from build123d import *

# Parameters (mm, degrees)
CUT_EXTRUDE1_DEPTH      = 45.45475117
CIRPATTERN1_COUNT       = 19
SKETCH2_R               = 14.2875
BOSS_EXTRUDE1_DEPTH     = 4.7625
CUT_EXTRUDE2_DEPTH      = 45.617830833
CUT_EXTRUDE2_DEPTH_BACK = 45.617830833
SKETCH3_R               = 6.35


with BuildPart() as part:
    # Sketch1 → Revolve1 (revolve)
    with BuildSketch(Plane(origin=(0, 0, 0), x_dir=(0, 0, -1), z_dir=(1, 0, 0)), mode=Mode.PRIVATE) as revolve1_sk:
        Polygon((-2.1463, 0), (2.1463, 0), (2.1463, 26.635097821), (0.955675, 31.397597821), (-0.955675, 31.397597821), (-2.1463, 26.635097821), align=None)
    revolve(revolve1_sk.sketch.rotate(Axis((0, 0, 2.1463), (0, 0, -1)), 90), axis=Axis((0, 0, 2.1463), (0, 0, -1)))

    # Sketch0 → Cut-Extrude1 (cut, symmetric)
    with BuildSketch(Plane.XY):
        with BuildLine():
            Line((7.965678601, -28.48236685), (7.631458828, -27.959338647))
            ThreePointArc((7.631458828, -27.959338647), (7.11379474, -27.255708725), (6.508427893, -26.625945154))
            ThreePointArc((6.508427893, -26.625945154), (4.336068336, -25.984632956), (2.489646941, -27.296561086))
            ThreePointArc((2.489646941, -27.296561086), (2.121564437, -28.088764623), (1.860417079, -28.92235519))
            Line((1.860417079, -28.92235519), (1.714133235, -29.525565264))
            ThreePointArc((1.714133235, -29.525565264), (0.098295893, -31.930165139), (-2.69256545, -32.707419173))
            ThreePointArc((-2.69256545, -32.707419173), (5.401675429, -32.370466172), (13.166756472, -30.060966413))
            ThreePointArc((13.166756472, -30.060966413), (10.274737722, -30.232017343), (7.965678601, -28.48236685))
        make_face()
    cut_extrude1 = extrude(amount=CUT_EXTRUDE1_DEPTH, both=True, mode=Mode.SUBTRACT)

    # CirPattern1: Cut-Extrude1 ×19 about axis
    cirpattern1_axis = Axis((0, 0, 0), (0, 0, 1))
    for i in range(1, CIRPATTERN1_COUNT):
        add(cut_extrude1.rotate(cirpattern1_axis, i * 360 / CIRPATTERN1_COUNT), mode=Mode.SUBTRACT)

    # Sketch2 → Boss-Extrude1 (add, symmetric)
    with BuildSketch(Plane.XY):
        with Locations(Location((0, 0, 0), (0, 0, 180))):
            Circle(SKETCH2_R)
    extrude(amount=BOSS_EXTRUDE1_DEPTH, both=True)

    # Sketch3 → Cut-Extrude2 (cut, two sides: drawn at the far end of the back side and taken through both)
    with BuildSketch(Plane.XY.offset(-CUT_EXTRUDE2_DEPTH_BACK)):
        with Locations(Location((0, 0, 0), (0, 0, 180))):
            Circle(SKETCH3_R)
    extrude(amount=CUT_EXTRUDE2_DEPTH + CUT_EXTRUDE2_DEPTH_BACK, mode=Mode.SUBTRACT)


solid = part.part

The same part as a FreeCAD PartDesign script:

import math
import FreeCAD as App
import Part
import Sketcher
from FreeCAD import Vector
Q = App.Units.Quantity


def add_polygon(sketch, points):
    """Adds a closed chain of lines whose ends are joined by coincident constraints."""
    first, n = sketch.GeometryCount, len(points)
    for a, b in zip(points, points[1:] + points[:1]):
        sketch.addGeometry(Part.LineSegment(App.Vector(*a, 0), App.Vector(*b, 0)), False)
    for i in range(n):
        sketch.addConstraint(Sketcher.Constraint("Coincident", first + i, 2, first + (i + 1) % n, 1))

doc = App.newDocument("Part")
params = doc.addObject("Spreadsheet::Sheet", "Params")
for row, (alias, value) in enumerate([
    ("sketch1_height", "0.169 in"),
    ("revolution_angle", "360 deg"),
    ("sketch2_radius", "0.262 in"),
    ("sketch2_radius2", "0.102 in"),
    ("pocket1_length", "90.909502 mm"),
    ("sketch3_diameter", "1.125 in"),
    ("pad1_length", "0.375 in"),
    ("sketch4_diameter", "0.5 in"),
], start=1):
    params.set(f"A{row}", alias)
    params.set(f"B{row}", "=" + value)
    params.setAlias(f"B{row}", alias)

body = doc.addObject("PartDesign::Body", "Body")

# Sketch on YZ plane
sketch1 = doc.addObject("Sketcher::SketchObject", "Sketch")
body.addObject(sketch1)
sketch1.AttachmentSupport = (doc.YZ_Plane, [""])
sketch1.MapMode = "FlatFace"
add_polygon(sketch1, [(0, 2.1463), (0, -2.1463), (26.635098, -2.1463), (31.397598, -0.955675), (31.397598, 0.955675), (26.635098, 2.1463)])  # lines 0-5
sketch1.addConstraint(Sketcher.Constraint("Vertical", 0))
sketch1.addConstraint(Sketcher.Constraint("Horizontal", 1))
sketch1.addConstraint(Sketcher.Constraint("Vertical", 3))
sketch1.addConstraint(Sketcher.Constraint("Horizontal", 5))
sketch1.addConstraint(Sketcher.Constraint("Symmetric", 0, 2, 5, 2, -1, 1))
sketch1.addConstraint(Sketcher.Constraint("Vertical", 1, 2, 4, 2))
sketch1.addConstraint(Sketcher.Constraint("Equal", 2, 4))
sketch1.addConstraint(Sketcher.Constraint("DistanceY", 0, 2, 0, 1, Q("0.169 in")))
sketch1.addConstraint(Sketcher.Constraint("DistanceX", 1, 2, 2, 2, Q("0.1875 in")))
sketch1.addConstraint(Sketcher.Constraint("DistanceY", 1, 2, 2, 2, Q("0.046875 in")))
sketch1.addConstraint(Sketcher.Constraint("DistanceX", 1, 1, 1, 2, 26.635098))
sketch1.setExpression("Constraints[13]", "Params.sketch1_height")
revolution = doc.addObject("PartDesign::Revolution", "Revolution")
body.addObject(revolution)
revolution.Profile = sketch1
revolution.ReferenceAxis = (sketch1, ["V_Axis"])
revolution.setExpression("Angle", "Params.revolution_angle")

# Sketch on XY plane
sketch2 = doc.addObject("Sketcher::SketchObject", "Sketch001")
body.addObject(sketch2)
sketch2.AttachmentSupport = (doc.XY_Plane, [""])
sketch2.MapMode = "FlatFace"
sketch2.addGeometry(Part.LineSegment(Vector(7.965679, -28.482367, 0), Vector(7.631459, -27.959339, 0)), False)
sketch2.addGeometry(Part.ArcOfCircle(Part.Circle(Vector(2.02379, -31.54269, 0), Vector(0, 0, 1), 6.6548), math.radians(32.578947), math.radians(47.631579)), False)
sketch2.addGeometry(Part.ArcOfCircle(Part.Circle(Vector(4.7625, -28.540098, 0), Vector(0, 0, 1), 2.5908), math.radians(47.631579), math.radians(151.315789)), False)
sketch2.addGeometry(Part.ArcOfCircle(Part.Circle(Vector(8.32776, -30.490744, 0), Vector(0, 0, 1), 6.6548), math.radians(151.315789), math.radians(166.368421)), False)
sketch2.addGeometry(Part.LineSegment(Vector(1.860417, -28.922355, 0), Vector(1.714133, -29.525565, 0)), False)
sketch2.addGeometry(Part.ArcOfCircle(Part.Circle(Vector(-2.3495, -28.540098, 0), Vector(0, 0, 1), 4.181419), math.radians(-94.706135), math.radians(-13.631579)), False)
sketch2.addGeometry(Part.ArcOfCircle(Part.Circle(Vector(0, 0, 0), Vector(0, 0, 1), 32.818062), math.radians(-94.706135), math.radians(-66.346496)), False)
sketch2.addGeometry(Part.ArcOfCircle(Part.Circle(Vector(11.489152, -26.230835, 0), Vector(0, 0, 1), 4.181419), math.radians(-147.421053), math.radians(-66.346496)), False)
sketch2.addConstraint(Sketcher.Constraint("Tangent", 0, 2, 1, 1))
sketch2.addConstraint(Sketcher.Constraint("Tangent", 1, 2, 2, 1))
sketch2.addConstraint(Sketcher.Constraint("Tangent", 2, 2, 3, 1))
sketch2.addConstraint(Sketcher.Constraint("Tangent", 3, 2, 4, 1))
sketch2.addConstraint(Sketcher.Constraint("Tangent", 4, 2, 5, 2))
sketch2.addConstraint(Sketcher.Constraint("Tangent", 5, 1, 6, 1))
sketch2.addConstraint(Sketcher.Constraint("Tangent", 6, 2, 7, 2))
sketch2.addConstraint(Sketcher.Constraint("Tangent", 7, 1, 0, 1))
sketch2.addConstraint(Sketcher.Constraint("Coincident", 6, 3, -1, 1))
sketch2.addConstraint(Sketcher.Constraint("Equal", 1, 3))
sketch2.addConstraint(Sketcher.Constraint("Equal", 5, 7))
sketch2.addConstraint(Sketcher.Constraint("Horizontal", 2, 3, 5, 3))
sketch2.addConstraint(Sketcher.Constraint("Equal", 0, 4))
sketch2.addConstraint(Sketcher.Constraint("Radius", 1, Q("0.262 in")))
sketch2.addConstraint(Sketcher.Constraint("Radius", 2, Q("0.102 in")))
sketch2.addConstraint(Sketcher.Constraint("DistanceX", 5, 3, 2, 3, Q("0.28 in")))
sketch2.addConstraint(Sketcher.Constraint("DistanceX", -1, 1, 2, 3, Q("0.1875 in")))
sketch2.addConstraint(Sketcher.Constraint("Radius", 5, 4.181419))
sketch2.addConstraint(Sketcher.Constraint("Radius", 6, 32.818062))
sketch2.addConstraint(Sketcher.Constraint("DistanceX", 0, 2, 3, 3, 0.696301))
sketch2.addConstraint(Sketcher.Constraint("DistanceY", 3, 3, 1, 2, 3.864799))
sketch2.setExpression("Constraints[13]", "Params.sketch2_radius")
sketch2.setExpression("Constraints[14]", "Params.sketch2_radius2")
pocket1 = doc.addObject("PartDesign::Pocket", "Pocket")
body.addObject(pocket1)
pocket1.Profile = sketch2
pocket1.setExpression("Length", "Params.pocket1_length")
pocket1.Midplane = True
doc.recompute()

polarpattern = doc.addObject("PartDesign::PolarPattern", "PolarPattern")
body.addObject(polarpattern)
polarpattern.Originals = [pocket1]
polarpattern.Axis = (doc.Z_Axis, [""])
polarpattern.Angle = 360
polarpattern.Occurrences = 19
body.Tip = polarpattern

# Sketch on XY plane
sketch3 = doc.addObject("Sketcher::SketchObject", "Sketch002")
body.addObject(sketch3)
sketch3.AttachmentSupport = (doc.XY_Plane, [""])
sketch3.MapMode = "FlatFace"
sketch3.addGeometry(Part.Circle(Vector(0, 0, 0), Vector(0, 0, 1), 14.2875), False)
sketch3.addConstraint(Sketcher.Constraint("Coincident", 0, 3, -1, 1))
sketch3.addConstraint(Sketcher.Constraint("Diameter", 0, Q("1.125 in")))
sketch3.setExpression("Constraints[1]", "Params.sketch3_diameter")
pad1 = doc.addObject("PartDesign::Pad", "Pad")
body.addObject(pad1)
pad1.Profile = sketch3
pad1.setExpression("Length", "Params.pad1_length")
pad1.Midplane = True

# Sketch on XY plane
sketch4 = doc.addObject("Sketcher::SketchObject", "Sketch003")
body.addObject(sketch4)
sketch4.AttachmentSupport = (doc.XY_Plane, [""])
sketch4.MapMode = "FlatFace"
sketch4.addGeometry(Part.Circle(Vector(0, 0, 0), Vector(0, 0, 1), 6.35), False)
sketch4.addConstraint(Sketcher.Constraint("Coincident", 0, 3, -1, 1))
sketch4.addConstraint(Sketcher.Constraint("Diameter", 0, Q("0.5 in")))
sketch4.setExpression("Constraints[1]", "Params.sketch4_diameter")
pocket2 = doc.addObject("PartDesign::Pocket", "Pocket001")
body.addObject(pocket2)
pocket2.Profile = sketch4
pocket2.Type = "ThroughAll"
pocket2.Midplane = True

doc.recompute()
